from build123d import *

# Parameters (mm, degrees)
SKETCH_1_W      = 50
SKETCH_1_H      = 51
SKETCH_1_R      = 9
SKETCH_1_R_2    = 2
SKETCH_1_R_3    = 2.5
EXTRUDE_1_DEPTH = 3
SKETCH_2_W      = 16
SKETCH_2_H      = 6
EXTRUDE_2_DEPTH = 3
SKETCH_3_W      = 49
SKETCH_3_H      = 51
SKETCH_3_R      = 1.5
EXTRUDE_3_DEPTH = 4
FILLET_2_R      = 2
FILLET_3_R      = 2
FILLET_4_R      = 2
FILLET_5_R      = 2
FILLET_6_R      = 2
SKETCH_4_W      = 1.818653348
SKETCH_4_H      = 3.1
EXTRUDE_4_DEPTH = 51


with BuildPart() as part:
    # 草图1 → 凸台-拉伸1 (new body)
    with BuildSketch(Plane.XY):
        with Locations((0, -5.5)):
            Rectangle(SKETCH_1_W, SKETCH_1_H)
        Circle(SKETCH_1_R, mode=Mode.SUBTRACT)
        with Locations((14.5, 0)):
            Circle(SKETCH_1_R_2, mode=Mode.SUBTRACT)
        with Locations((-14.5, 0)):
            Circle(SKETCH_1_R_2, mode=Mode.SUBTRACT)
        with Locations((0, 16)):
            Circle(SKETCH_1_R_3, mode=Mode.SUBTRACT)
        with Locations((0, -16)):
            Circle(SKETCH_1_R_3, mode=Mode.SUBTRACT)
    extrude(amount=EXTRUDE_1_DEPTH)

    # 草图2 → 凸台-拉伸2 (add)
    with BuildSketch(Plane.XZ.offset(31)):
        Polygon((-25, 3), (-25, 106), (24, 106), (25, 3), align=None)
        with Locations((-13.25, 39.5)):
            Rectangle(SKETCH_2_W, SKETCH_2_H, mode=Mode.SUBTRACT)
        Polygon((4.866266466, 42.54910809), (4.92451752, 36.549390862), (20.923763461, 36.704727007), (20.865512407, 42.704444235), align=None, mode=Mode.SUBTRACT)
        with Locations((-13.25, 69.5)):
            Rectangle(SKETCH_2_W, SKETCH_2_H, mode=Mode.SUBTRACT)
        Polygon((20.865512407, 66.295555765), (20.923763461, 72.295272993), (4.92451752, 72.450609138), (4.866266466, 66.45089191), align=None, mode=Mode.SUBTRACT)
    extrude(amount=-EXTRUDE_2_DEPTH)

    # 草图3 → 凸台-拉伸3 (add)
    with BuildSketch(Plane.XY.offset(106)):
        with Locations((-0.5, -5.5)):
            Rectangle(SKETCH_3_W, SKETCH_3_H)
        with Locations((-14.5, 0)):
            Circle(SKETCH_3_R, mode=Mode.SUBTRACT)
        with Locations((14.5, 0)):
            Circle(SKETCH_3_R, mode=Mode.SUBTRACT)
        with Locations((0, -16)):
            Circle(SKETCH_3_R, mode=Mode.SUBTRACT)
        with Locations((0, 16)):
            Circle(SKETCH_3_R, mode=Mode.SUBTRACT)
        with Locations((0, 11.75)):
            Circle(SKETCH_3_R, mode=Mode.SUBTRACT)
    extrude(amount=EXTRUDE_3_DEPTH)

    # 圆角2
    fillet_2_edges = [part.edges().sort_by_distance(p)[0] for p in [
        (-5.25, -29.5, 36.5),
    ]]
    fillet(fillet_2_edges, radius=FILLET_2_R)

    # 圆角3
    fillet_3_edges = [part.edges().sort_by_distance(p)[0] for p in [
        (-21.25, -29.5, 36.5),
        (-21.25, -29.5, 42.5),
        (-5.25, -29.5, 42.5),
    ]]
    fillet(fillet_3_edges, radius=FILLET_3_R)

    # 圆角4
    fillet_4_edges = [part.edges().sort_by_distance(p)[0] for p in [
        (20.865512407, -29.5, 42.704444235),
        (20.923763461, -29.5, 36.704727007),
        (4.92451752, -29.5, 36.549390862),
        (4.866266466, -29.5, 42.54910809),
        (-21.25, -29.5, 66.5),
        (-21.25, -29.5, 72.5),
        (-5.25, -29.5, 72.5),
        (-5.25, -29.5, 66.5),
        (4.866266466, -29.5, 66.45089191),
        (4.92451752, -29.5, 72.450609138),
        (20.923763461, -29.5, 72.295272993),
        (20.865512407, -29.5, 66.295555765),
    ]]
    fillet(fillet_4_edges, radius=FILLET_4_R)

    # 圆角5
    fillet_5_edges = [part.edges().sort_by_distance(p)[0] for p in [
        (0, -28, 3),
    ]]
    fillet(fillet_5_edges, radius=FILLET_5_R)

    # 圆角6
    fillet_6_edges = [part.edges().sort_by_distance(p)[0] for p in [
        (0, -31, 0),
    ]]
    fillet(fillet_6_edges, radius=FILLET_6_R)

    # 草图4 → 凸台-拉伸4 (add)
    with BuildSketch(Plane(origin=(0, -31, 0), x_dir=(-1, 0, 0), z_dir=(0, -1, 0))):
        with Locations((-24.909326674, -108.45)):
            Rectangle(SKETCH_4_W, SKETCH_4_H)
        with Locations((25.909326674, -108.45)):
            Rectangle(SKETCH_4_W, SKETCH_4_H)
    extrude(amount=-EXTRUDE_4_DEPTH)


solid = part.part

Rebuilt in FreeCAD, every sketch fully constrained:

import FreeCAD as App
import Part
import Sketcher
from FreeCAD import Vector


def edges_at(feature, points):
    """Names of the edges that pass closest to the given points."""
    edges = feature.Shape.Edges
    near = lambda p: min(range(len(edges)), key=lambda i: edges[i].distToShape(Part.Vertex(*p))[0])
    return sorted({f"Edge{near(p) + 1}" for p in points})

doc = App.newDocument("Part")
body = doc.addObject("PartDesign::Body", "Body")

# Sketch on XY plane
sketch1 = doc.addObject("Sketcher::SketchObject", "Sketch")
body.addObject(sketch1)
sketch1.AttachmentSupport = (doc.XY_Plane, [""])
sketch1.MapMode = "FlatFace"
sketch1.addGeometry([
    Part.LineSegment(Vector(-25, 20, 0), Vector(-25, -31, 0)),  # 0
    Part.LineSegment(Vector(-25, -31, 0), Vector(25, -31, 0)),  # 1
    Part.LineSegment(Vector(25, -31, 0), Vector(25, 20, 0)),  # 2
    Part.LineSegment(Vector(25, 20, 0), Vector(-25, 20, 0)),  # 3
    Part.Circle(Vector(0, -16, 0), Vector(0, 0, 1), 2.5),  # 4
    Part.Circle(Vector(-14.5, 0, 0), Vector(0, 0, 1), 2),  # 5
    Part.Circle(Vector(0, 0, 0), Vector(0, 0, 1), 9),  # 6
    Part.Circle(Vector(14.5, 0, 0), Vector(0, 0, 1), 2),  # 7
    Part.Circle(Vector(0, 16, 0), Vector(0, 0, 1), 2.5),  # 8
], False)
sketch1.addConstraint([
    Sketcher.Constraint("Coincident", 0, 2, 1, 1),
    Sketcher.Constraint("Coincident", 1, 2, 2, 1),
    Sketcher.Constraint("Coincident", 2, 2, 3, 1),
    Sketcher.Constraint("Coincident", 3, 2, 0, 1),
    Sketcher.Constraint("Vertical", 0),
    Sketcher.Constraint("Horizontal", 1),
    Sketcher.Constraint("Vertical", 2),
    Sketcher.Constraint("Horizontal", 3),
    Sketcher.Constraint("Coincident", 6, 3, -1, 1),
    Sketcher.Constraint("Equal", 5, 7),
    Sketcher.Constraint("Equal", 4, 8),
    Sketcher.Constraint("Symmetric", 5, 3, 7, 3, -1, 1),
    Sketcher.Constraint("Symmetric", 4, 3, 8, 3, -1, 1),
    Sketcher.Constraint("PointOnObject", 4, 3, -2),
    Sketcher.Constraint("PointOnObject", 5, 3, -1),
    Sketcher.Constraint("Diameter", 4, 5.0),
    Sketcher.Constraint("Diameter", 5, 4.0),
    Sketcher.Constraint("Diameter", 6, 18.0),
    Sketcher.Constraint("DistanceX", 1, 1, 1, 2, 50.0),
    Sketcher.Constraint("DistanceY", 0, 2, 0, 1, 51.0),
    Sketcher.Constraint("DistanceY", 4, 3, -1, 1, 16.0),
    Sketcher.Constraint("DistanceX", 0, 2, -1, 1, 25.0),
    Sketcher.Constraint("DistanceY", 0, 2, -1, 1, 31.0),
    Sketcher.Constraint("DistanceX", 5, 3, 7, 3, 29.0),
])
pad1 = doc.addObject("PartDesign::Pad", "Pad")
body.addObject(pad1)
pad1.Profile = sketch1
pad1.Length = 3

# Sketch on XZ plane
sketch2 = doc.addObject("Sketcher::SketchObject", "Sketch001")
body.addObject(sketch2)
sketch2.AttachmentSupport = (doc.XZ_Plane, [""])
sketch2.MapMode = "FlatFace"
sketch2.AttachmentOffset = App.Placement(Vector(0, 0, 31), App.Rotation())
sketch2.addGeometry([
    Part.LineSegment(Vector(-25, 106, 0), Vector(-25, 3, 0)),  # 0
    Part.LineSegment(Vector(-25, 3, 0), Vector(25, 3, 0)),  # 1
    Part.LineSegment(Vector(25, 3, 0), Vector(24, 106, 0)),  # 2
    Part.LineSegment(Vector(24, 106, 0), Vector(-25, 106, 0)),  # 3
    Part.LineSegment(Vector(5, 43, 0), Vector(21, 43, 0)),  # 4
    Part.LineSegment(Vector(21, 43, 0), Vector(21, 37, 0)),  # 5
    Part.LineSegment(Vector(21, 37, 0), Vector(5, 37, 0)),  # 6
    Part.LineSegment(Vector(5, 37, 0), Vector(5, 43, 0)),  # 7
    Part.LineSegment(Vector(-21, 36, 0), Vector(-21, 42, 0)),  # 8
    Part.LineSegment(Vector(-21, 42, 0), Vector(-5, 42, 0)),  # 9
    Part.LineSegment(Vector(-5, 42, 0), Vector(-5, 36, 0)),  # 10
    Part.LineSegment(Vector(-5, 36, 0), Vector(-21, 36, 0)),  # 11
    Part.LineSegment(Vector(21, 66, 0), Vector(5, 66, 0)),  # 12
    Part.LineSegment(Vector(5, 66, 0), Vector(5, 72, 0)),  # 13
    Part.LineSegment(Vector(5, 72, 0), Vector(21, 72, 0)),  # 14
    Part.LineSegment(Vector(21, 72, 0), Vector(21, 66, 0)),  # 15
    Part.LineSegment(Vector(-21, 66, 0), Vector(-21, 72, 0)),  # 16
    Part.LineSegment(Vector(-21, 72, 0), Vector(-5, 72, 0)),  # 17
    Part.LineSegment(Vector(-5, 72, 0), Vector(-5, 66, 0)),  # 18
    Part.LineSegment(Vector(-5, 66, 0), Vector(-21, 66, 0)),  # 19
], False)
sketch2.addConstraint([
    Sketcher.Constraint("Coincident", 0, 2, 1, 1),
    Sketcher.Constraint("Coincident", 1, 2, 2, 1),
    Sketcher.Constraint("Coincident", 2, 2, 3, 1),
    Sketcher.Constraint("Coincident", 3, 2, 0, 1),
    Sketcher.Constraint("Coincident", 4, 2, 5, 1),
    Sketcher.Constraint("Coincident", 5, 2, 6, 1),
    Sketcher.Constraint("Coincident", 6, 2, 7, 1),
    Sketcher.Constraint("Coincident", 7, 2, 4, 1),
    Sketcher.Constraint("Coincident", 8, 2, 9, 1),
    Sketcher.Constraint("Coincident", 9, 2, 10, 1),
    Sketcher.Constraint("Coincident", 10, 2, 11, 1),
    Sketcher.Constraint("Coincident", 11, 2, 8, 1),
    Sketcher.Constraint("Coincident", 12, 2, 13, 1),
    Sketcher.Constraint("Coincident", 13, 2, 14, 1),
    Sketcher.Constraint("Coincident", 14, 2, 15, 1),
    Sketcher.Constraint("Coincident", 15, 2, 12, 1),
    Sketcher.Constraint("Coincident", 16, 2, 17, 1),
    Sketcher.Constraint("Coincident", 17, 2, 18, 1),
    Sketcher.Constraint("Coincident", 18, 2, 19, 1),
    Sketcher.Constraint("Coincident", 19, 2, 16, 1),
    Sketcher.Constraint("Vertical", 0),
    Sketcher.Constraint("Horizontal", 1),
    Sketcher.Constraint("Horizontal", 3),
    Sketcher.Constraint("Vertical", 8),
    Sketcher.Constraint("Horizontal", 9),
    Sketcher.Constraint("Vertical", 10),
    Sketcher.Constraint("Horizontal", 11),
    Sketcher.Constraint("Vertical", 16),
    Sketcher.Constraint("Horizontal", 17),
    Sketcher.Constraint("Vertical", 18),
    Sketcher.Constraint("Horizontal", 19),
    Sketcher.Constraint("Perpendicular", 2, 4),
    Sketcher.Constraint("Perpendicular", 4, 5),
    Sketcher.Constraint("Perpendicular", 5, 6),
    Sketcher.Constraint("Perpendicular", 6, 7),
    Sketcher.Constraint("Perpendicular", 12, 13),
    Sketcher.Constraint("Perpendicular", 13, 14),
    Sketcher.Constraint("Perpendicular", 14, 15),
    Sketcher.Constraint("Vertical", 7, 2, 12, 2),
    Sketcher.Constraint("Vertical", 6, 2, 13, 2),
    Sketcher.Constraint("Vertical", 5, 2, 14, 2),
    Sketcher.Constraint("Vertical", 11, 2, 16, 2),
    Sketcher.Constraint("Vertical", 10, 2, 17, 2),
    Sketcher.Constraint("Equal", 10, 16),
    Sketcher.Constraint("Equal", 7, 13),
    Sketcher.Constraint("DistanceX", 1, 1, 1, 2, 50.0),
    Sketcher.Constraint("DistanceX", 3, 2, 3, 1, 49.0),
    Sketcher.Constraint("DistanceX", 9, 1, 9, 2, 16.0),
    Sketcher.Constraint("DistanceY", 0, 2, 0, 1, 103.0),
    Sketcher.Constraint("DistanceY", 8, 1, 8, 2, 6.0),
    Sketcher.Constraint("Distance", 4, 16.0),
    Sketcher.Constraint("Distance", 5, 6.0),
    Sketcher.Constraint("DistanceX", 0, 2, -1, 1, 25.0),
    Sketcher.Constraint("DistanceY", -1, 1, 0, 2, 3.0),
    Sketcher.Constraint("DistanceY", 8, 2, 16, 2, 30.0),
    Sketcher.Constraint("DistanceY", -1, 1, 8, 2, 42.5),
    Sketcher.Constraint("DistanceX", 8, 2, -1, 1, 21.25),
    Sketcher.Constraint("DistanceY", 6, 2, 12, 2, 29.901501),
    Sketcher.Constraint("DistanceY", -1, 1, 6, 2, 36.549391),
    Sketcher.Constraint("DistanceX", -1, 1, 4, 2, 20.865512),
])
pad2 = doc.addObject("PartDesign::Pad", "Pad001")
body.addObject(pad2)
pad2.Profile = sketch2
pad2.Length = 3
pad2.Reversed = True

# Sketch on XY plane
sketch3 = doc.addObject("Sketcher::SketchObject", "Sketch002")
body.addObject(sketch3)
sketch3.AttachmentSupport = (doc.XY_Plane, [""])
sketch3.MapMode = "FlatFace"
sketch3.AttachmentOffset = App.Placement(Vector(0, 0, 106), App.Rotation())
sketch3.addGeometry([
    Part.LineSegment(Vector(-25, 20, 0), Vector(-25, -31, 0)),  # 0
    Part.LineSegment(Vector(-25, -31, 0), Vector(24, -31, 0)),  # 1
    Part.LineSegment(Vector(24, -31, 0), Vector(24, 20, 0)),  # 2
    Part.LineSegment(Vector(24, 20, 0), Vector(-25, 20, 0)),  # 3
    Part.Circle(Vector(0, -16, 0), Vector(0, 0, 1), 1.5),  # 4
    Part.Circle(Vector(-14.5, 0, 0), Vector(0, 0, 1), 1.5),  # 5
    Part.Circle(Vector(14.5, 0, 0), Vector(0, 0, 1), 1.5),  # 6
    Part.Circle(Vector(0, 11.8, 0), Vector(0, 0, 1), 1.5),  # 7
    Part.Circle(Vector(0, 16, 0), Vector(0, 0, 1), 1.5),  # 8
], False)
sketch3.addConstraint([
    Sketcher.Constraint("Coincident", 0, 2, 1, 1),
    Sketcher.Constraint("Coincident", 1, 2, 2, 1),
    Sketcher.Constraint("Coincident", 2, 2, 3, 1),
    Sketcher.Constraint("Coincident", 3, 2, 0, 1),
    Sketcher.Constraint("Vertical", 0),
    Sketcher.Constraint("Horizontal", 1),
    Sketcher.Constraint("Vertical", 2),
    Sketcher.Constraint("Horizontal", 3),
    Sketcher.Constraint("Equal", 4, 5),
    Sketcher.Constraint("Equal", 5, 6),
    Sketcher.Constraint("Equal", 6, 7),
    Sketcher.Constraint("Equal", 7, 8),
    Sketcher.Constraint("Symmetric", 5, 3, 6, 3, -1, 1),
    Sketcher.Constraint("Symmetric", 4, 3, 8, 3, -1, 1),
    Sketcher.Constraint("PointOnObject", 4, 3, -2),
    Sketcher.Constraint("PointOnObject", 5, 3, -1),
    Sketcher.Constraint("PointOnObject", 7, 3, -2),
    Sketcher.Constraint("Diameter", 4, 3.0),
    Sketcher.Constraint("DistanceX", 1, 1, 1, 2, 49.0),
    Sketcher.Constraint("DistanceY", 0, 2, 0, 1, 51.0),
    Sketcher.Constraint("DistanceY", 4, 3, -1, 1, 16.0),
    Sketcher.Constraint("DistanceX", 0, 2, -1, 1, 25.0),
    Sketcher.Constraint("DistanceY", 0, 2, -1, 1, 31.0),
    Sketcher.Constraint("DistanceX", 5, 3, 6, 3, 29.0),
    Sketcher.Constraint("DistanceY", -1, 1, 7, 3, 11.75),
])
pad3 = doc.addObject("PartDesign::Pad", "Pad002")
body.addObject(pad3)
pad3.Profile = sketch3
pad3.Length = 4
doc.recompute()

fillet = doc.addObject("PartDesign::Fillet", "Fillet")
body.addObject(fillet)
fillet.Base = (pad3, edges_at(pad3, [(-5.25, -29.5, 36.5)]))
fillet.Radius = 2
doc.recompute()

fillet2 = doc.addObject("PartDesign::Fillet", "Fillet001")
body.addObject(fillet2)
fillet2.Base = (fillet, edges_at(fillet, [(-21.25, -29.5, 36.5), (-21.25, -29.5, 42.5), (-5.25, -29.5, 42.5)]))
fillet2.Radius = 2
doc.recompute()

fillet3 = doc.addObject("PartDesign::Fillet", "Fillet002")
body.addObject(fillet3)
fillet3.Base = (fillet2, edges_at(fillet2, [
    (20.866, -29.5, 42.704),
    (20.924, -29.5, 36.705),
    (4.925, -29.5, 36.549),
    (4.866, -29.5, 42.549),
    (-21.25, -29.5, 66.5),
    (-21.25, -29.5, 72.5),
    (-5.25, -29.5, 72.5),
    (-5.25, -29.5, 66.5),
    (4.866, -29.5, 66.451),
    (4.925, -29.5, 72.451),
    (20.924, -29.5, 72.295),
    (20.866, -29.5, 66.296),
]))
fillet3.Radius = 2
doc.recompute()

fillet4 = doc.addObject("PartDesign::Fillet", "Fillet003")
body.addObject(fillet4)
fillet4.Base = (fillet3, edges_at(fillet3, [(0, -28, 3)]))
fillet4.Radius = 2
doc.recompute()

fillet5 = doc.addObject("PartDesign::Fillet", "Fillet004")
body.addObject(fillet5)
fillet5.Base = (fillet4, edges_at(fillet4, [(0, -31, 0)]))
fillet5.Radius = 2

# Sketch on XZ plane
sketch4 = doc.addObject("Sketcher::SketchObject", "Sketch003")
body.addObject(sketch4)
sketch4.AttachmentSupport = (doc.XZ_Plane, [""])
sketch4.MapMode = "FlatFace"
sketch4.AttachmentOffset = App.Placement(Vector(0, 0, 31), App.Rotation())
sketch4.addGeometry([
    Part.LineSegment(Vector(25.8, 106.9, 0), Vector(25.8, 110, 0)),  # 0
    Part.LineSegment(Vector(25.8, 110, 0), Vector(24, 110, 0)),  # 1
    Part.LineSegment(Vector(24, 110, 0), Vector(24, 106.9, 0)),  # 2
    Part.LineSegment(Vector(24, 106.9, 0), Vector(25.8, 106.9, 0)),  # 3
    Part.LineSegment(Vector(-25, 106.9, 0), Vector(-25, 110, 0)),  # 4
    Part.LineSegment(Vector(-25, 110, 0), Vector(-26.8, 110, 0)),  # 5
    Part.LineSegment(Vector(-26.8, 110, 0), Vector(-26.8, 106.9, 0)),  # 6
    Part.LineSegment(Vector(-26.8, 106.9, 0), Vector(-25, 106.9, 0)),  # 7
], False)
sketch4.addConstraint([
    Sketcher.Constraint("Coincident", 0, 2, 1, 1),
    Sketcher.Constraint("Coincident", 1, 2, 2, 1),
    Sketcher.Constraint("Coincident", 2, 2, 3, 1),
    Sketcher.Constraint("Coincident", 3, 2, 0, 1),
    Sketcher.Constraint("Coincident", 4, 2, 5, 1),
    Sketcher.Constraint("Coincident", 5, 2, 6, 1),
    Sketcher.Constraint("Coincident", 6, 2, 7, 1),
    Sketcher.Constraint("Coincident", 7, 2, 4, 1),
    Sketcher.Constraint("Vertical", 0),
    Sketcher.Constraint("Horizontal", 1),
    Sketcher.Constraint("Vertical", 2),
    Sketcher.Constraint("Horizontal", 3),
    Sketcher.Constraint("Vertical", 4),
    Sketcher.Constraint("Horizontal", 5),
    Sketcher.Constraint("Vertical", 6),
    Sketcher.Constraint("Horizontal", 7),
    Sketcher.Constraint("Horizontal", 1, 2, 4, 2),
    Sketcher.Constraint("Horizontal", 3, 2, 6, 2),
    Sketcher.Constraint("Equal", 3, 5),
    Sketcher.Constraint("DistanceY", 0, 1, 0, 2, 3.1),
    Sketcher.Constraint("DistanceY", -1, 1, 0, 2, 110.0),
    Sketcher.Constraint("DistanceX", -1, 1, 1, 2, 24.0),
    Sketcher.Constraint("DistanceX", 4, 2, -1, 1, 25.0),
    Sketcher.Constraint("DistanceX", 1, 2, 1, 1, 1.818653),
])
pad4 = doc.addObject("PartDesign::Pad", "Pad003")
body.addObject(pad4)
pad4.Profile = sketch4
pad4.Length = 51
pad4.Reversed = True

doc.recompute()
